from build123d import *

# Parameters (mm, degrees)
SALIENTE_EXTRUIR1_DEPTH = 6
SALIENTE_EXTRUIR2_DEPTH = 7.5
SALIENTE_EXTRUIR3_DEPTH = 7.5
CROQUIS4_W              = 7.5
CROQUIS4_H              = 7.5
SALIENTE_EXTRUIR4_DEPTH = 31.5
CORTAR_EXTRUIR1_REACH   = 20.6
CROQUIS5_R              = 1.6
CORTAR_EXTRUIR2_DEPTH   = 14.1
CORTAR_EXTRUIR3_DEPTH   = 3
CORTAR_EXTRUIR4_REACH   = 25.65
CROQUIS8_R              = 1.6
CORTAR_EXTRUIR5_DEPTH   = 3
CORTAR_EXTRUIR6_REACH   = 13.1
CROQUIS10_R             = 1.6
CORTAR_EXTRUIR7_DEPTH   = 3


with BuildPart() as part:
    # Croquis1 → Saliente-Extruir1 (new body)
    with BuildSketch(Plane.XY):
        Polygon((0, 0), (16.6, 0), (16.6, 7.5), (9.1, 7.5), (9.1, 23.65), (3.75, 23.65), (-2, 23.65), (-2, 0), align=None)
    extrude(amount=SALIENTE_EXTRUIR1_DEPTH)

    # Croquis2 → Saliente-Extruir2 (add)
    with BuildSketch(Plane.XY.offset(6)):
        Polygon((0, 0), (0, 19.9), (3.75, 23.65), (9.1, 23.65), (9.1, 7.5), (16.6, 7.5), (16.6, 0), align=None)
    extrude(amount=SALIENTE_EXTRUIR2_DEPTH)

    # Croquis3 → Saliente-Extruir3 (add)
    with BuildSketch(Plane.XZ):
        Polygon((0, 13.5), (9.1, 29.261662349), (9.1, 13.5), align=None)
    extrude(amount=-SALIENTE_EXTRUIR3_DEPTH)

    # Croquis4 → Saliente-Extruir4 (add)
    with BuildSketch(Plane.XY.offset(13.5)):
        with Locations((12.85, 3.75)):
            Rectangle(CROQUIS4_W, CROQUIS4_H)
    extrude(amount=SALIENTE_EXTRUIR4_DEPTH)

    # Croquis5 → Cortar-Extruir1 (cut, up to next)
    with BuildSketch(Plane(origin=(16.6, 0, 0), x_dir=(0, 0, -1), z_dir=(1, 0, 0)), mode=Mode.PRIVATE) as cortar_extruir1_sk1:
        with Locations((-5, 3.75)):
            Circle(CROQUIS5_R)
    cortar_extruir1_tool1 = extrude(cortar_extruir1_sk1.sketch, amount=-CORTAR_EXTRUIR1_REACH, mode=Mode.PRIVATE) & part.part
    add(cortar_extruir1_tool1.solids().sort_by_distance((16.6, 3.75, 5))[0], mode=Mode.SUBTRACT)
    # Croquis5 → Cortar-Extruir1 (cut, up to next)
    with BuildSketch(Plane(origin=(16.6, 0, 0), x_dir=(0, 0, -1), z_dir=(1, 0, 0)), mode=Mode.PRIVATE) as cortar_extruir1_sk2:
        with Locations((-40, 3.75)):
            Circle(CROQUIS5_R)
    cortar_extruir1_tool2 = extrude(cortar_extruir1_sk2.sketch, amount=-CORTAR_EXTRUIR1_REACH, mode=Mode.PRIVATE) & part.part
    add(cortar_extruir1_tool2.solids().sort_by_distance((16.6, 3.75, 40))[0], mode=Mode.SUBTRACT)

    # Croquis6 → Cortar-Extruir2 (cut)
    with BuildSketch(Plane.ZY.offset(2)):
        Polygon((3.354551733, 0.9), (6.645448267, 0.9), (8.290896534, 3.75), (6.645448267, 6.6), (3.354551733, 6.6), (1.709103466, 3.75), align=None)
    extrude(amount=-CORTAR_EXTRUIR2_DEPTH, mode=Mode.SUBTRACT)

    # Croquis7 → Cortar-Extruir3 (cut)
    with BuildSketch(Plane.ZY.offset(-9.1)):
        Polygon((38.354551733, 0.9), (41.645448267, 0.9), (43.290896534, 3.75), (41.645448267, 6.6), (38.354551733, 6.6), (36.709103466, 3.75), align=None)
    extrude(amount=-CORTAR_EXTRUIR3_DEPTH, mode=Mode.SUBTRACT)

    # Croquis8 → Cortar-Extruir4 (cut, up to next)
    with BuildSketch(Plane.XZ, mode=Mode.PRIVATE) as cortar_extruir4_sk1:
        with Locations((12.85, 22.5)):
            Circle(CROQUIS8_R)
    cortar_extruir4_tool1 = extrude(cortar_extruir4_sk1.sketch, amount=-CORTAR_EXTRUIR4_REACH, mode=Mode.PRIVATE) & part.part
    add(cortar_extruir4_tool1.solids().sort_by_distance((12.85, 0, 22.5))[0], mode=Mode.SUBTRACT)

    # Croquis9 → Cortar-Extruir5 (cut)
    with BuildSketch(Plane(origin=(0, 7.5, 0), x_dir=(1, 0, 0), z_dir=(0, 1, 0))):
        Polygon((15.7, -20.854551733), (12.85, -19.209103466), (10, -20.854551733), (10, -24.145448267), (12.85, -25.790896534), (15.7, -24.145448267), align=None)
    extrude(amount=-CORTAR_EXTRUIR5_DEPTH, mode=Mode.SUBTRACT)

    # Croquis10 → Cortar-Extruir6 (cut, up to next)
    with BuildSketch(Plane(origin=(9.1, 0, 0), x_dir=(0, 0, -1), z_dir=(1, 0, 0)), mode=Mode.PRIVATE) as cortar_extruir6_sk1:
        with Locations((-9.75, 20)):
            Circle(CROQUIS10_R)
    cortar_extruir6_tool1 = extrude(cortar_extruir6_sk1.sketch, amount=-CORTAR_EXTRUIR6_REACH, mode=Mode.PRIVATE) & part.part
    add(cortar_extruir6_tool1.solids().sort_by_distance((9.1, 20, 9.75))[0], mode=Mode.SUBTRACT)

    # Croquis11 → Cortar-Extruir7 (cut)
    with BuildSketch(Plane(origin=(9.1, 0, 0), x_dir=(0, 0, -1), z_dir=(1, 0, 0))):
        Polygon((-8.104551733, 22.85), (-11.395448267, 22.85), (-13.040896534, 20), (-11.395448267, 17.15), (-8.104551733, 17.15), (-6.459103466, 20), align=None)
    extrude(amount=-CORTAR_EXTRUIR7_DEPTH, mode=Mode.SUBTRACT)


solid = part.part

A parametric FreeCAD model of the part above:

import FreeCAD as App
import Part
import Sketcher
from FreeCAD import Vector
Q = App.Units.Quantity

doc = App.newDocument("Part")
body = doc.addObject("PartDesign::Body", "Body")

# Sketch on XY plane
sketch1 = body.newObject("Sketcher::SketchObject", "Sketch")
sketch1.AttachmentSupport = (doc.getObject("XY_Plane"), [""])
sketch1.MapMode = "FlatFace"
sketch1.addGeometry(Part.LineSegment(Vector(17, 0, 0), Vector(17, 8, 0)), False)
sketch1.addGeometry(Part.LineSegment(Vector(17, 8, 0), Vector(9, 8, 0)), False)
sketch1.addGeometry(Part.LineSegment(Vector(9, 8, 0), Vector(9, 24, 0)), False)
sketch1.addGeometry(Part.LineSegment(Vector(9, 24, 0), Vector(-2, 24, 0)), False)
sketch1.addGeometry(Part.LineSegment(Vector(-2, 24, 0), Vector(-2, 0, 0)), False)
sketch1.addGeometry(Part.LineSegment(Vector(-2, 0, 0), Vector(17, 0, 0)), False)
sketch1.addConstraint(Sketcher.Constraint("Coincident", 0, 2, 1, 1))
sketch1.addConstraint(Sketcher.Constraint("Coincident", 1, 2, 2, 1))
sketch1.addConstraint(Sketcher.Constraint("Coincident", 2, 2, 3, 1))
sketch1.addConstraint(Sketcher.Constraint("Coincident", 3, 2, 4, 1))
sketch1.addConstraint(Sketcher.Constraint("Coincident", 4, 2, 5, 1))
sketch1.addConstraint(Sketcher.Constraint("Coincident", 5, 2, 0, 1))
sketch1.addConstraint(Sketcher.Constraint("Vertical", 0))
sketch1.addConstraint(Sketcher.Constraint("Horizontal", 1))
sketch1.addConstraint(Sketcher.Constraint("Vertical", 2))
sketch1.addConstraint(Sketcher.Constraint("Horizontal", 3))
sketch1.addConstraint(Sketcher.Constraint("Vertical", 4))
sketch1.addConstraint(Sketcher.Constraint("Horizontal", 5))
sketch1.addConstraint(Sketcher.Constraint("PointOnObject", 4, 2, -1))
sketch1.addConstraint(Sketcher.Constraint("Equal", 1, 0))
sketch1.addConstraint(Sketcher.Constraint("DistanceX", 1, 2, 1, 1, 7.5))
sketch1.addConstraint(Sketcher.Constraint("DistanceX", 3, 2, 3, 1, 11.1))
sketch1.addConstraint(Sketcher.Constraint("DistanceX", 3, 2, -1, 1, 2.0))
sketch1.addConstraint(Sketcher.Constraint("DistanceY", 2, 1, 2, 2, 16.15))
pad1 = body.newObject("PartDesign::Pad", "Pad")
pad1.Profile = sketch1
pad1.Length = 6

# Sketch on XY plane
sketch2 = body.newObject("Sketcher::SketchObject", "Sketch001")
sketch2.AttachmentSupport = (doc.getObject("XY_Plane"), [""])
sketch2.MapMode = "FlatFace"
sketch2.AttachmentOffset = App.Placement(Vector(0, 0, 6), App.Rotation())
sketch2.addGeometry(Part.LineSegment(Vector(0, 20, 0), Vector(0, 0, 0)), False)
sketch2.addGeometry(Part.LineSegment(Vector(0, 0, 0), Vector(17, 0, 0)), False)
sketch2.addGeometry(Part.LineSegment(Vector(17, 0, 0), Vector(17, 8, 0)), False)
sketch2.addGeometry(Part.LineSegment(Vector(17, 8, 0), Vector(9, 8, 0)), False)
sketch2.addGeometry(Part.LineSegment(Vector(9, 8, 0), Vector(9, 24, 0)), False)
sketch2.addGeometry(Part.LineSegment(Vector(9, 24, 0), Vector(4, 24, 0)), False)
sketch2.addGeometry(Part.LineSegment(Vector(4, 24, 0), Vector(0, 20, 0)), False)
sketch2.addConstraint(Sketcher.Constraint("Coincident", 0, 2, 1, 1))
sketch2.addConstraint(Sketcher.Constraint("Coincident", 1, 2, 2, 1))
sketch2.addConstraint(Sketcher.Constraint("Coincident", 2, 2, 3, 1))
sketch2.addConstraint(Sketcher.Constraint("Coincident", 3, 2, 4, 1))
sketch2.addConstraint(Sketcher.Constraint("Coincident", 4, 2, 5, 1))
sketch2.addConstraint(Sketcher.Constraint("Coincident", 5, 2, 6, 1))
sketch2.addConstraint(Sketcher.Constraint("Coincident", 6, 2, 0, 1))
sketch2.addConstraint(Sketcher.Constraint("Vertical", 0))
sketch2.addConstraint(Sketcher.Constraint("Horizontal", 1))
sketch2.addConstraint(Sketcher.Constraint("Vertical", 2))
sketch2.addConstraint(Sketcher.Constraint("Horizontal", 3))
sketch2.addConstraint(Sketcher.Constraint("Vertical", 4))
sketch2.addConstraint(Sketcher.Constraint("Horizontal", 5))
sketch2.addConstraint(Sketcher.Constraint("Coincident", 0, 2, -1, 1))
sketch2.addConstraint(Sketcher.Constraint("Equal", 3, 2))
sketch2.addConstraint(Sketcher.Constraint("Angle", 6, Q("-135 deg")))
sketch2.addConstraint(Sketcher.Constraint("DistanceX", 1, 1, 1, 2, 16.6))
sketch2.addConstraint(Sketcher.Constraint("DistanceX", 3, 2, 3, 1, 7.5))
sketch2.addConstraint(Sketcher.Constraint("DistanceY", 0, 2, 0, 1, 19.9))
sketch2.addConstraint(Sketcher.Constraint("DistanceX", 5, 2, 5, 1, 5.35))
pad2 = body.newObject("PartDesign::Pad", "Pad001")
pad2.Profile = sketch2
pad2.Length = 7.5

# Sketch on XZ plane
sketch3 = body.newObject("Sketcher::SketchObject", "Sketch002")
sketch3.AttachmentSupport = (doc.getObject("XZ_Plane"), [""])
sketch3.MapMode = "FlatFace"
sketch3.addGeometry(Part.LineSegment(Vector(9, 29, 0), Vector(0, 14, 0)), False)
sketch3.addGeometry(Part.LineSegment(Vector(0, 14, 0), Vector(9, 14, 0)), False)
sketch3.addGeometry(Part.LineSegment(Vector(9, 14, 0), Vector(9, 29, 0)), False)
sketch3.addConstraint(Sketcher.Constraint("Coincident", 0, 2, 1, 1))
sketch3.addConstraint(Sketcher.Constraint("Coincident", 1, 2, 2, 1))
sketch3.addConstraint(Sketcher.Constraint("Coincident", 2, 2, 0, 1))
sketch3.addConstraint(Sketcher.Constraint("Horizontal", 1))
sketch3.addConstraint(Sketcher.Constraint("Vertical", 2))
sketch3.addConstraint(Sketcher.Constraint("PointOnObject", 0, 2, -2))
sketch3.addConstraint(Sketcher.Constraint("Angle", 0, Q("-120 deg")))
sketch3.addConstraint(Sketcher.Constraint("DistanceX", 1, 1, 1, 2, 9.1))
sketch3.addConstraint(Sketcher.Constraint("DistanceY", -1, 1, 0, 2, 13.5))
pad3 = body.newObject("PartDesign::Pad", "Pad002")
pad3.Profile = sketch3
pad3.Length = 7.5
pad3.Reversed = True

# Sketch on XY plane
sketch4 = body.newObject("Sketcher::SketchObject", "Sketch003")
sketch4.AttachmentSupport = (doc.getObject("XY_Plane"), [""])
sketch4.MapMode = "FlatFace"
sketch4.AttachmentOffset = App.Placement(Vector(0, 0, 13.5), App.Rotation())
sketch4.addGeometry(Part.LineSegment(Vector(9, 8, 0), Vector(9, 0, 0)), False)
sketch4.addGeometry(Part.LineSegment(Vector(9, 0, 0), Vector(17, 0, 0)), False)
sketch4.addGeometry(Part.LineSegment(Vector(17, 0, 0), Vector(17, 8, 0)), False)
sketch4.addGeometry(Part.LineSegment(Vector(17, 8, 0), Vector(9, 8, 0)), False)
sketch4.addConstraint(Sketcher.Constraint("Coincident", 0, 2, 1, 1))
sketch4.addConstraint(Sketcher.Constraint("Coincident", 1, 2, 2, 1))
sketch4.addConstraint(Sketcher.Constraint("Coincident", 2, 2, 3, 1))
sketch4.addConstraint(Sketcher.Constraint("Coincident", 3, 2, 0, 1))
sketch4.addConstraint(Sketcher.Constraint("Vertical", 0))
sketch4.addConstraint(Sketcher.Constraint("Horizontal", 1))
sketch4.addConstraint(Sketcher.Constraint("Vertical", 2))
sketch4.addConstraint(Sketcher.Constraint("Horizontal", 3))
sketch4.addConstraint(Sketcher.Constraint("PointOnObject", 0, 2, -1))
sketch4.addConstraint(Sketcher.Constraint("Equal", 3, 0))
sketch4.addConstraint(Sketcher.Constraint("DistanceX", 1, 1, 1, 2, 7.5))
sketch4.addConstraint(Sketcher.Constraint("DistanceX", -1, 1, 0, 2, 9.1))
pad4 = body.newObject("PartDesign::Pad", "Pad003")
pad4.Profile = sketch4
pad4.Length = 31.5

# Sketch on YZ plane
sketch5 = body.newObject("Sketcher::SketchObject", "Sketch004")
sketch5.AttachmentSupport = (doc.getObject("YZ_Plane"), [""])
sketch5.MapMode = "FlatFace"
sketch5.AttachmentOffset = App.Placement(Vector(0, 0, 16.6), App.Rotation())
sketch5.addGeometry(Part.Circle(Vector(3.8, 5, 0), Vector(0, 0, 1), 1.6), False)
sketch5.addConstraint(Sketcher.Constraint("Diameter", 0, 3.2))
sketch5.addConstraint(Sketcher.Constraint("DistanceY", -1, 1, 0, 3, 5.0))
sketch5.addConstraint(Sketcher.Constraint("DistanceX", -1, 1, 0, 3, 3.75))
pocket1 = body.newObject("PartDesign::Pocket", "Pocket")
pocket1.Profile = sketch5
pocket1.Type = "UpToFirst"

# Sketch on YZ plane
sketch6 = body.newObject("Sketcher::SketchObject", "Sketch005")
sketch6.AttachmentSupport = (doc.getObject("YZ_Plane"), [""])
sketch6.MapMode = "FlatFace"
sketch6.AttachmentOffset = App.Placement(Vector(0, 0, 16.6), App.Rotation())
sketch6.addGeometry(Part.Circle(Vector(3.8, 40, 0), Vector(0, 0, 1), 1.6), False)
sketch6.addConstraint(Sketcher.Constraint("Diameter", 0, 3.2))
sketch6.addConstraint(Sketcher.Constraint("DistanceY", -1, 1, 0, 3, 40.0))
sketch6.addConstraint(Sketcher.Constraint("DistanceX", -1, 1, 0, 3, 3.75))
pocket2 = body.newObject("PartDesign::Pocket", "Pocket001")
pocket2.Profile = sketch6
pocket2.Type = "UpToFirst"

# Sketch on YZ plane
sketch7 = body.newObject("Sketcher::SketchObject", "Sketch006")
sketch7.AttachmentSupport = (doc.getObject("YZ_Plane"), [""])
sketch7.MapMode = "FlatFace"
sketch7.AttachmentOffset = App.Placement(Vector(0, 0, -2), App.Rotation())
sketch7.addGeometry(Part.LineSegment(Vector(0.9, 3.4, 0), Vector(0.9, 6.6, 0)), False)
sketch7.addGeometry(Part.LineSegment(Vector(0.9, 6.6, 0), Vector(3.8, 8.3, 0)), False)
sketch7.addGeometry(Part.LineSegment(Vector(3.8, 8.3, 0), Vector(6.6, 6.6, 0)), False)
sketch7.addGeometry(Part.LineSegment(Vector(6.6, 6.6, 0), Vector(6.6, 3.4, 0)), False)
sketch7.addGeometry(Part.LineSegment(Vector(6.6, 3.4, 0), Vector(3.8, 1.7, 0)), False)
sketch7.addGeometry(Part.LineSegment(Vector(3.8, 1.7, 0), Vector(0.9, 3.4, 0)), False)
sketch7.addConstraint(Sketcher.Constraint("Coincident", 0, 2, 1, 1))
sketch7.addConstraint(Sketcher.Constraint("Coincident", 1, 2, 2, 1))
sketch7.addConstraint(Sketcher.Constraint("Coincident", 2, 2, 3, 1))
sketch7.addConstraint(Sketcher.Constraint("Coincident", 3, 2, 4, 1))
sketch7.addConstraint(Sketcher.Constraint("Coincident", 4, 2, 5, 1))
sketch7.addConstraint(Sketcher.Constraint("Coincident", 5, 2, 0, 1))
sketch7.addConstraint(Sketcher.Constraint("Vertical", 0))
sketch7.addConstraint(Sketcher.Constraint("Vertical", 3))
sketch7.addConstraint(Sketcher.Constraint("Parallel", 1, 4))
sketch7.addConstraint(Sketcher.Constraint("Parallel", 2, 5))
sketch7.addConstraint(Sketcher.Constraint("Horizontal", 0, 2, 2, 2))
sketch7.addConstraint(Sketcher.Constraint("Horizontal", 3, 2, 5, 2))
sketch7.addConstraint(Sketcher.Constraint("Vertical", 1, 2, 4, 2))
sketch7.addConstraint(Sketcher.Constraint("Angle", 1, Q("30 deg")))
sketch7.addConstraint(Sketcher.Constraint("DistanceX", -1, 1, 0, 2, 0.9))
sketch7.addConstraint(Sketcher.Constraint("DistanceX", -1, 1, 2, 2, 6.6))
sketch7.addConstraint(Sketcher.Constraint("DistanceY", 0, 1, 0, 2, 3.290897))
sketch7.addConstraint(Sketcher.Constraint("DistanceY", -1, 1, 0, 2, 6.645448))
pocket3 = body.newObject("PartDesign::Pocket", "Pocket002")
pocket3.Profile = sketch7
pocket3.Length = 14.1
pocket3.Reversed = True

# Sketch on YZ plane
sketch8 = body.newObject("Sketcher::SketchObject", "Sketch007")
sketch8.AttachmentSupport = (doc.getObject("YZ_Plane"), [""])
sketch8.MapMode = "FlatFace"
sketch8.AttachmentOffset = App.Placement(Vector(0, 0, 9.1), App.Rotation())
sketch8.addGeometry(Part.LineSegment(Vector(0.9, 38.4, 0), Vector(0.9, 41.6, 0)), False)
sketch8.addGeometry(Part.LineSegment(Vector(0.9, 41.6, 0), Vector(3.8, 43.3, 0)), False)
sketch8.addGeometry(Part.LineSegment(Vector(3.8, 43.3, 0), Vector(6.6, 41.6, 0)), False)
sketch8.addGeometry(Part.LineSegment(Vector(6.6, 41.6, 0), Vector(6.6, 38.4, 0)), False)
sketch8.addGeometry(Part.LineSegment(Vector(6.6, 38.4, 0), Vector(3.8, 36.7, 0)), False)
sketch8.addGeometry(Part.LineSegment(Vector(3.8, 36.7, 0), Vector(0.9, 38.4, 0)), False)
sketch8.addConstraint(Sketcher.Constraint("Coincident", 0, 2, 1, 1))
sketch8.addConstraint(Sketcher.Constraint("Coincident", 1, 2, 2, 1))
sketch8.addConstraint(Sketcher.Constraint("Coincident", 2, 2, 3, 1))
sketch8.addConstraint(Sketcher.Constraint("Coincident", 3, 2, 4, 1))
sketch8.addConstraint(Sketcher.Constraint("Coincident", 4, 2, 5, 1))
sketch8.addConstraint(Sketcher.Constraint("Coincident", 5, 2, 0, 1))
sketch8.addConstraint(Sketcher.Constraint("Vertical", 0))
sketch8.addConstraint(Sketcher.Constraint("Vertical", 3))
sketch8.addConstraint(Sketcher.Constraint("Parallel", 1, 4))
sketch8.addConstraint(Sketcher.Constraint("Parallel", 2, 5))
sketch8.addConstraint(Sketcher.Constraint("Horizontal", 0, 2, 2, 2))
sketch8.addConstraint(Sketcher.Constraint("Horizontal", 3, 2, 5, 2))
sketch8.addConstraint(Sketcher.Constraint("Vertical", 1, 2, 4, 2))
sketch8.addConstraint(Sketcher.Constraint("Angle", 1, Q("30 deg")))
sketch8.addConstraint(Sketcher.Constraint("DistanceX", -1, 1, 0, 2, 0.9))
sketch8.addConstraint(Sketcher.Constraint("DistanceX", -1, 1, 2, 2, 6.6))
sketch8.addConstraint(Sketcher.Constraint("DistanceY", 0, 1, 0, 2, 3.290897))
sketch8.addConstraint(Sketcher.Constraint("DistanceY", -1, 1, 0, 2, 41.645448))
pocket4 = body.newObject("PartDesign::Pocket", "Pocket003")
pocket4.Profile = sketch8
pocket4.Length = 3
pocket4.Reversed = True

# Sketch on XZ plane
sketch9 = body.newObject("Sketcher::SketchObject", "Sketch008")
sketch9.AttachmentSupport = (doc.getObject("XZ_Plane"), [""])
sketch9.MapMode = "FlatFace"
sketch9.addGeometry(Part.Circle(Vector(12.8, 22.5, 0), Vector(0, 0, 1), 1.6), False)
sketch9.addConstraint(Sketcher.Constraint("Diameter", 0, 3.2))
sketch9.addConstraint(Sketcher.Constraint("DistanceY", -1, 1, 0, 3, 22.5))
sketch9.addConstraint(Sketcher.Constraint("DistanceX", -1, 1, 0, 3, 12.85))
pocket5 = body.newObject("PartDesign::Pocket", "Pocket004")
pocket5.Profile = sketch9
pocket5.Type = "UpToFirst"

# Sketch on XZ plane
sketch10 = body.newObject("Sketcher::SketchObject", "Sketch009")
sketch10.AttachmentSupport = (doc.getObject("XZ_Plane"), [""])
sketch10.MapMode = "FlatFace"
sketch10.AttachmentOffset = App.Placement(Vector(0, 0, -7.5), App.Rotation())
sketch10.addGeometry(Part.LineSegment(Vector(15.7, 20.9, 0), Vector(12.8, 19.2, 0)), False)
sketch10.addGeometry(Part.LineSegment(Vector(12.8, 19.2, 0), Vector(10, 20.9, 0)), False)
sketch10.addGeometry(Part.LineSegment(Vector(10, 20.9, 0), Vector(10, 24.1, 0)), False)
sketch10.addGeometry(Part.LineSegment(Vector(10, 24.1, 0), Vector(12.8, 25.8, 0)), False)
sketch10.addGeometry(Part.LineSegment(Vector(12.8, 25.8, 0), Vector(15.7, 24.1, 0)), False)
sketch10.addGeometry(Part.LineSegment(Vector(15.7, 24.1, 0), Vector(15.7, 20.9, 0)), False)
sketch10.addConstraint(Sketcher.Constraint("Coincident", 0, 2, 1, 1))
sketch10.addConstraint(Sketcher.Constraint("Coincident", 1, 2, 2, 1))
sketch10.addConstraint(Sketcher.Constraint("Coincident", 2, 2, 3, 1))
sketch10.addConstraint(Sketcher.Constraint("Coincident", 3, 2, 4, 1))
sketch10.addConstraint(Sketcher.Constraint("Coincident", 4, 2, 5, 1))
sketch10.addConstraint(Sketcher.Constraint("Coincident", 5, 2, 0, 1))
sketch10.addConstraint(Sketcher.Constraint("Vertical", 2))
sketch10.addConstraint(Sketcher.Constraint("Vertical", 5))
sketch10.addConstraint(Sketcher.Constraint("Parallel", 0, 3))
sketch10.addConstraint(Sketcher.Constraint("Parallel", 1, 4))
sketch10.addConstraint(Sketcher.Constraint("Horizontal", 2, 2, 4, 2))
sketch10.addConstraint(Sketcher.Constraint("Horizontal", 1, 2, 5, 2))
sketch10.addConstraint(Sketcher.Constraint("Vertical", 0, 2, 3, 2))
sketch10.addConstraint(Sketcher.Constraint("Angle", 0, Q("-150 deg")))
sketch10.addConstraint(Sketcher.Constraint("DistanceX", -1, 1, 1, 2, 10.0))
sketch10.addConstraint(Sketcher.Constraint("DistanceX", -1, 1, 4, 2, 15.7))
sketch10.addConstraint(Sketcher.Constraint("DistanceY", 2, 1, 2, 2, 3.290897))
sketch10.addConstraint(Sketcher.Constraint("DistanceY", -1, 1, 1, 2, 20.854552))
pocket6 = body.newObject("PartDesign::Pocket", "Pocket005")
pocket6.Profile = sketch10
pocket6.Length = 3
pocket6.Reversed = True

# Sketch on YZ plane
sketch11 = body.newObject("Sketcher::SketchObject", "Sketch010")
sketch11.AttachmentSupport = (doc.getObject("YZ_Plane"), [""])
sketch11.MapMode = "FlatFace"
sketch11.AttachmentOffset = App.Placement(Vector(0, 0, 9.1), App.Rotation())
sketch11.addGeometry(Part.Circle(Vector(20, 9.8, 0), Vector(0, 0, 1), 1.6), False)
sketch11.addConstraint(Sketcher.Constraint("Diameter", 0, 3.2))
sketch11.addConstraint(Sketcher.Constraint("DistanceX", -1, 1, 0, 3, 20.0))
sketch11.addConstraint(Sketcher.Constraint("DistanceY", -1, 1, 0, 3, 9.75))
pocket7 = body.newObject("PartDesign::Pocket", "Pocket006")
pocket7.Profile = sketch11
pocket7.Type = "UpToFirst"

# Sketch on YZ plane
sketch12 = body.newObject("Sketcher::SketchObject", "Sketch011")
sketch12.AttachmentSupport = (doc.getObject("YZ_Plane"), [""])
sketch12.MapMode = "FlatFace"
sketch12.AttachmentOffset = App.Placement(Vector(0, 0, 9.1), App.Rotation())
sketch12.addGeometry(Part.LineSegment(Vector(22.9, 8.1, 0), Vector(22.9, 11.4, 0)), False)
sketch12.addGeometry(Part.LineSegment(Vector(22.9, 11.4, 0), Vector(20, 13, 0)), False)
sketch12.addGeometry(Part.LineSegment(Vector(20, 13, 0), Vector(17.1, 11.4, 0)), False)
sketch12.addGeometry(Part.LineSegment(Vector(17.1, 11.4, 0), Vector(17.1, 8.1, 0)), False)
sketch12.addGeometry(Part.LineSegment(Vector(17.1, 8.1, 0), Vector(20, 6.5, 0)), False)
sketch12.addGeometry(Part.LineSegment(Vector(20, 6.5, 0), Vector(22.9, 8.1, 0)), False)
sketch12.addConstraint(Sketcher.Constraint("Coincident", 0, 2, 1, 1))
sketch12.addConstraint(Sketcher.Constraint("Coincident", 1, 2, 2, 1))
sketch12.addConstraint(Sketcher.Constraint("Coincident", 2, 2, 3, 1))
sketch12.addConstraint(Sketcher.Constraint("Coincident", 3, 2, 4, 1))
sketch12.addConstraint(Sketcher.Constraint("Coincident", 4, 2, 5, 1))
sketch12.addConstraint(Sketcher.Constraint("Coincident", 5, 2, 0, 1))
sketch12.addConstraint(Sketcher.Constraint("Vertical", 0))
sketch12.addConstraint(Sketcher.Constraint("Vertical", 3))
sketch12.addConstraint(Sketcher.Constraint("Parallel", 1, 4))
sketch12.addConstraint(Sketcher.Constraint("Parallel", 2, 5))
sketch12.addConstraint(Sketcher.Constraint("Horizontal", 0, 2, 2, 2))
sketch12.addConstraint(Sketcher.Constraint("Horizontal", 3, 2, 5, 2))
sketch12.addConstraint(Sketcher.Constraint("Vertical", 1, 2, 4, 2))
sketch12.addConstraint(Sketcher.Constraint("Angle", 1, Q("150 deg")))
sketch12.addConstraint(Sketcher.Constraint("DistanceX", -1, 1, 1, 2, 20.0))
sketch12.addConstraint(Sketcher.Constraint("DistanceX", 2, 2, 0, 2, 5.7))
sketch12.addConstraint(Sketcher.Constraint("DistanceY", 0, 1, 0, 2, 3.290897))
sketch12.addConstraint(Sketcher.Constraint("DistanceY", -1, 1, 0, 2, 11.395448))
pocket8 = body.newObject("PartDesign::Pocket", "Pocket007")
pocket8.Profile = sketch12
pocket8.Length = 3

doc.recompute()
